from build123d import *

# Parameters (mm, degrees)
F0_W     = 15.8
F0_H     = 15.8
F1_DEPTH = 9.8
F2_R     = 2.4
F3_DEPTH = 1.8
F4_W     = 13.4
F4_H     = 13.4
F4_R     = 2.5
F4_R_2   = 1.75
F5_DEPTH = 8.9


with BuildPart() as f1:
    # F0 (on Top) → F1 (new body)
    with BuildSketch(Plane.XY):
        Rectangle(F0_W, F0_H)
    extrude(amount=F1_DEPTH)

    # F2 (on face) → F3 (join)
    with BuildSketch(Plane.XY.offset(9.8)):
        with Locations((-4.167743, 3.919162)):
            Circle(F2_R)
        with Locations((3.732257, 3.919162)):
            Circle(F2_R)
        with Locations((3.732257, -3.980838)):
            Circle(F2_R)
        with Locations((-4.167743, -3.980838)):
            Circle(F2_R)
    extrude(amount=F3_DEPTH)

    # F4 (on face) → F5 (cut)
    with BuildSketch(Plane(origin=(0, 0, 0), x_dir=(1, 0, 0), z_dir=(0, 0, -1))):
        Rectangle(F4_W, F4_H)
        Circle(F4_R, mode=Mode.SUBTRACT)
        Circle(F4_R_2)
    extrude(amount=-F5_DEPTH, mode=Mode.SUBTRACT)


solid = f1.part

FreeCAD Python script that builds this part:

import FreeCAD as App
import Part
import Sketcher

V = App.Vector
Q = App.Units.Quantity


def add_polygon(sketch, points):
    """Adds a closed chain of lines whose ends are joined by coincident constraints."""
    first, n = sketch.GeometryCount, len(points)
    for a, b in zip(points, points[1:] + points[:1]):
        sketch.addGeometry(Part.LineSegment(App.Vector(*a, 0), App.Vector(*b, 0)), False)
    for i in range(n):
        sketch.addConstraint(Sketcher.Constraint("Coincident", first + i, 2, first + (i + 1) % n, 1))

doc = App.newDocument("Part")
body = doc.addObject("PartDesign::Body", "Body")

sketch1 = body.newObject("Sketcher::SketchObject", "Sketch")
sketch1.AttachmentSupport = (doc.getObject("XY_Plane"), [""])
sketch1.MapMode = "FlatFace"
add_polygon(sketch1, [(-8, 8), (-8, -8), (8, -8), (8, 8)])
sketch1.addConstraint([
    Sketcher.Constraint("Vertical", 0),
    Sketcher.Constraint("Horizontal", 1),
    Sketcher.Constraint("Vertical", 2),
    Sketcher.Constraint("Horizontal", 3),
    Sketcher.Constraint("Symmetric", 0, 2, 2, 2, -1, 1),
    Sketcher.Constraint("Equal", 3, 0),
    Sketcher.Constraint("DistanceX", 1, 1, 1, 2, Q("15.8 mm")),
])
pad1 = body.newObject("PartDesign::Pad", "Pad")
pad1.Profile = sketch1
pad1.Length = 9.8

sketch2 = body.newObject("Sketcher::SketchObject", "Sketch001")
sketch2.AttachmentSupport = (doc.getObject("XY_Plane"), [""])
sketch2.MapMode = "FlatFace"
sketch2.AttachmentOffset = App.Placement(V(0, 0, 9.8), App.Rotation())
sketch2.addGeometry([
    Part.Circle(V(-4.2, 3.9, 0), V(0, 0, 1), 2.4),
    Part.Circle(V(3.7, 3.9, 0), V(0, 0, 1), 2.4),
    Part.Circle(V(3.7, -4, 0), V(0, 0, 1), 2.4),
    Part.Circle(V(-4.2, -4, 0), V(0, 0, 1), 2.4),
], False)
sketch2.addConstraint([
    Sketcher.Constraint("Equal", 0, 1),
    Sketcher.Constraint("Equal", 1, 2),
    Sketcher.Constraint("Equal", 2, 3),
    Sketcher.Constraint("Horizontal", 0, 3, 1, 3),
    Sketcher.Constraint("Horizontal", 2, 3, 3, 3),
    Sketcher.Constraint("Vertical", 1, 3, 2, 3),
    Sketcher.Constraint("Vertical", 0, 3, 3, 3),
    Sketcher.Constraint("Diameter", 0, Q("4.8 mm")),
    Sketcher.Constraint("DistanceX", 0, 3, 1, 3, Q("7.9 mm")),
    Sketcher.Constraint("DistanceY", 2, 3, 1, 3, Q("7.9 mm")),
    Sketcher.Constraint("DistanceY", -1, 1, 0, 3, Q("3.919162 mm")),
    Sketcher.Constraint("DistanceX", 0, 3, -1, 1, Q("4.167743 mm")),
])
pad2 = body.newObject("PartDesign::Pad", "Pad001")
pad2.Profile = sketch2
pad2.Length = 1.8

sketch3 = body.newObject("Sketcher::SketchObject", "Sketch002")
sketch3.AttachmentSupport = (doc.getObject("XY_Plane"), [""])
sketch3.MapMode = "FlatFace"
add_polygon(sketch3, [(-6.7, -6.7), (-6.7, 6.7), (6.7, 6.7), (6.7, -6.7)])
sketch3.addGeometry(Part.Circle(V(0, 0, 0), V(0, 0, 1), 2.5), False)
sketch3.addGeometry(Part.Circle(V(0, 0, 0), V(0, 0, 1), 1.8), False)
sketch3.addConstraint([
    Sketcher.Constraint("Vertical", 0),
    Sketcher.Constraint("Horizontal", 1),
    Sketcher.Constraint("Vertical", 2),
    Sketcher.Constraint("Horizontal", 3),
    Sketcher.Constraint("Coincident", 4, 3, -1, 1),
    Sketcher.Constraint("Coincident", 5, 3, -1, 1),
    Sketcher.Constraint("Symmetric", 0, 2, 2, 2, -1, 1),
    Sketcher.Constraint("Equal", 3, 0),
    Sketcher.Constraint("Diameter", 4, Q("5 mm")),
    Sketcher.Constraint("Diameter", 5, Q("3.5 mm")),
    Sketcher.Constraint("DistanceX", 1, 1, 1, 2, Q("13.4 mm")),
])
pocket1 = body.newObject("PartDesign::Pocket", "Pocket")
pocket1.Profile = sketch3
pocket1.Length = 8.9
pocket1.Reversed = True

doc.recompute()
